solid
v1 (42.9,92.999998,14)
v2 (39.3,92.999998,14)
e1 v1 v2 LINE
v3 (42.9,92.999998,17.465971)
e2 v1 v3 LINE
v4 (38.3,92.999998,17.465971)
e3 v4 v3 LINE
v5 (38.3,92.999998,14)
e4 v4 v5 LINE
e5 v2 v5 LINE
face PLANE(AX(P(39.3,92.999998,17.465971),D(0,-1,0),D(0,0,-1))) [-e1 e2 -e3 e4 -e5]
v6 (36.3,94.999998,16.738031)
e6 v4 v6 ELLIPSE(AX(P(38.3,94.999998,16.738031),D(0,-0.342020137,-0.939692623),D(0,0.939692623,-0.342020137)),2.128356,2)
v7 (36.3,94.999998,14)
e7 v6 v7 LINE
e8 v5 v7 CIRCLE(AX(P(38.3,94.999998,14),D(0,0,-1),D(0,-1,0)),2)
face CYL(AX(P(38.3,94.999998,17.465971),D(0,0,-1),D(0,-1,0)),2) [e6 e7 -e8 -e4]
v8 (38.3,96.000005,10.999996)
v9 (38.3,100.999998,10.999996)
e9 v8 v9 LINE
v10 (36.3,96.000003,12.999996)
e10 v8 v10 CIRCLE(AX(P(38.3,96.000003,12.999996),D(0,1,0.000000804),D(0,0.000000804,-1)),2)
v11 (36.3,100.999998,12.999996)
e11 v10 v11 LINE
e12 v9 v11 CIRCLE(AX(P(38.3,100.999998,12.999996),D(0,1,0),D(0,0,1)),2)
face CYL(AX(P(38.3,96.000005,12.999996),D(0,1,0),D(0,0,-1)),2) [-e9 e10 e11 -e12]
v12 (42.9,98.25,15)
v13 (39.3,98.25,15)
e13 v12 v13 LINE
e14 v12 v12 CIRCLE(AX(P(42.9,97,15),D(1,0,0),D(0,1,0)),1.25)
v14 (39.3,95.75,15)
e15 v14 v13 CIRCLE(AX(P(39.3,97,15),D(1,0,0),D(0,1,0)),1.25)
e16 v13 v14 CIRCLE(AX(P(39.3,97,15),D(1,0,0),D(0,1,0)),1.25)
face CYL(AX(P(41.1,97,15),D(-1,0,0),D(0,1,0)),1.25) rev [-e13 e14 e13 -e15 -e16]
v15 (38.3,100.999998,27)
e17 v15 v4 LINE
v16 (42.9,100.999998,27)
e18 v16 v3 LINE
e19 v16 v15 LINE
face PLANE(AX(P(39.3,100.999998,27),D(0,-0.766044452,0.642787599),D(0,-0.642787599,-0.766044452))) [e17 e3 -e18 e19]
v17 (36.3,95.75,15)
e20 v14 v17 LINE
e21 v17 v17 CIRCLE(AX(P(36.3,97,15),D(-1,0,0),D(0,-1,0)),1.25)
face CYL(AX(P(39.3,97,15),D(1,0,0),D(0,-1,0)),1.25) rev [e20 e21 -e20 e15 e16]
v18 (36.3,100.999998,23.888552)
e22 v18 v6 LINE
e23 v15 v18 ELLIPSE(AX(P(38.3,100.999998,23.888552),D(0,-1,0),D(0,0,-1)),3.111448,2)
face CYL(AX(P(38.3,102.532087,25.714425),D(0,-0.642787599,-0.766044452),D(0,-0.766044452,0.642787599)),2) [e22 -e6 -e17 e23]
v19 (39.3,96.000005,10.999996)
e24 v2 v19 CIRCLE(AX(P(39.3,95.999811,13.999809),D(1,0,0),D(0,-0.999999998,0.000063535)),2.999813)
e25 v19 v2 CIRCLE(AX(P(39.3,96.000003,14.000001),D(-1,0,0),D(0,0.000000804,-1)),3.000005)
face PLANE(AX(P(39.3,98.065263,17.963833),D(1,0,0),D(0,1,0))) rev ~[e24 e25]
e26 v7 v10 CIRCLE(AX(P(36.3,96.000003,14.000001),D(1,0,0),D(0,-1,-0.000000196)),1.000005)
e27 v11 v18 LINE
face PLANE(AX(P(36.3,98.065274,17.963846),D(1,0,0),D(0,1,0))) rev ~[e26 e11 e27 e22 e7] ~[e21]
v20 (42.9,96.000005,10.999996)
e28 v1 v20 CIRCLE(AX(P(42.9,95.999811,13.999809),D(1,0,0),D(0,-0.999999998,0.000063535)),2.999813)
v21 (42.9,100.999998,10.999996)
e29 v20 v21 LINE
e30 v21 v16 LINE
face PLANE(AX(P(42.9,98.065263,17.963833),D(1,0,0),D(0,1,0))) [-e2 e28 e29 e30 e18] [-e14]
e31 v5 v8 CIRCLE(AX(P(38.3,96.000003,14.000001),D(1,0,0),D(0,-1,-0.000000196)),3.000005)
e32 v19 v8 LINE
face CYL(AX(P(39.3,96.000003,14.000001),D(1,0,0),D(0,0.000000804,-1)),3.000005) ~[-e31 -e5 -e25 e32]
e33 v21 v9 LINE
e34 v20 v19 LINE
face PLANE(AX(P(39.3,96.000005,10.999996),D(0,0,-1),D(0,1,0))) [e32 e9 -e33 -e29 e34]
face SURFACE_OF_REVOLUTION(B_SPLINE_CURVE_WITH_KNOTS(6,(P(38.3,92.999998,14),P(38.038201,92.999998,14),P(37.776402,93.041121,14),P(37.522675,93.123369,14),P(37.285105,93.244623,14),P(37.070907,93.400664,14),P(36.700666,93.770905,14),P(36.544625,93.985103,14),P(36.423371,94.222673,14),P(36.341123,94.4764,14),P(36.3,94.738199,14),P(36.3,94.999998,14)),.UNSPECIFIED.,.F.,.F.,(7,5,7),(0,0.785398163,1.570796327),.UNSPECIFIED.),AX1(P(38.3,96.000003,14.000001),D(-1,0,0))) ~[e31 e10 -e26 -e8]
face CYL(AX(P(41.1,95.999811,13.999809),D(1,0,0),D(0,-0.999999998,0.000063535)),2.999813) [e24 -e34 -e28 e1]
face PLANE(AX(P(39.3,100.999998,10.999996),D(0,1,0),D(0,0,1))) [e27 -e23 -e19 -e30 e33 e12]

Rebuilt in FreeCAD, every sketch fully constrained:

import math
import FreeCAD as App
import Part
import Sketcher

V = App.Vector
Q = App.Units.Quantity


def edges_at(feature, points):
    """Names of the edges that pass closest to the given points."""
    edges = feature.Shape.Edges
    near = lambda p: min(range(len(edges)), key=lambda i: edges[i].distToShape(Part.Vertex(*p))[0])
    return sorted({f"Edge{near(p) + 1}" for p in points})

doc = App.newDocument("Part")
body = doc.addObject("PartDesign::Body", "Body")

# Sketch on YZ plane
sketch1 = doc.addObject("Sketcher::SketchObject", "Sketch")
body.addObject(sketch1)
sketch1.AttachmentSupport = (doc.YZ_Plane, [""])
sketch1.MapMode = "FlatFace"
sketch1.AttachmentOffset = App.Placement(V(0, 0, -41.1), App.Rotation())
sketch1.addGeometry([
    Part.LineSegment(V(96.000005, 10.999996, 0), V(100.999998, 10.999996, 0)),  # 0
    Part.LineSegment(V(100.999998, 10.999996, 0), V(100.999998, 27, 0)),  # 1
    Part.LineSegment(V(100.999998, 27, 0), V(92.999998, 17.465971, 0)),  # 2
    Part.LineSegment(V(92.999998, 17.465971, 0), V(92.999998, 14, 0)),  # 3
    Part.ArcOfCircle(Part.Circle(V(95.999811, 13.999809, 0), V(0, 0, 1), 2.999813), math.radians(179.99636), math.radians(270.003698)),  # 4
    Part.Circle(V(97, 15, 0), V(0, 0, 1), 1.25),  # 5
], False)
sketch1.addConstraint([
    Sketcher.Constraint("Coincident", 0, 2, 1, 1),
    Sketcher.Constraint("Coincident", 1, 2, 2, 1),
    Sketcher.Constraint("Coincident", 2, 2, 3, 1),
    Sketcher.Constraint("Coincident", 3, 2, 4, 1),
    Sketcher.Constraint("Coincident", 4, 2, 0, 1),
    Sketcher.Constraint("Horizontal", 0),
    Sketcher.Constraint("Vertical", 1),
    Sketcher.Constraint("Vertical", 3),
    Sketcher.Constraint("Diameter", 5, 2.5),
    Sketcher.Constraint("Angle", 2, Q("-129.999999 deg")),
    Sketcher.Constraint("DistanceX", -1, 1, 5, 3, 97.0),
    Sketcher.Constraint("DistanceY", -1, 1, 5, 3, 15.0),
    Sketcher.Constraint("DistanceX", -1, 1, 0, 2, 100.999998),
    Sketcher.Constraint("DistanceY", -1, 1, 1, 2, 27.0),
    Sketcher.Constraint("DistanceX", -1, 1, 2, 2, 92.999998),
    Sketcher.Constraint("DistanceY", -1, 1, 3, 2, 14.0),
    Sketcher.Constraint("Radius", 4, 2.999813),
    Sketcher.Constraint("DistanceX", 0, 1, 0, 2, 4.999993),
    Sketcher.Constraint("DistanceY", 1, 1, 1, 2, 16.000004),
])
pad1 = doc.addObject("PartDesign::Pad", "Pad")
body.addObject(pad1)
pad1.Profile = sketch1
pad1.Length = 3.6
pad1.Midplane = True

# Sketch on YZ plane
sketch2 = doc.addObject("Sketcher::SketchObject", "Sketch001")
body.addObject(sketch2)
sketch2.AttachmentSupport = (doc.YZ_Plane, [""])
sketch2.MapMode = "FlatFace"
sketch2.AttachmentOffset = App.Placement(V(0, 0, -42.9), App.Rotation())
sketch2.addGeometry([
    Part.LineSegment(V(92.999998, 17.465971, 0), V(100.999998, 27, 0)),  # 0
    Part.LineSegment(V(100.999998, 27, 0), V(100.999998, 10.999996, 0)),  # 1
    Part.LineSegment(V(100.999998, 10.999996, 0), V(96.000005, 10.999996, 0)),  # 2
    Part.ArcOfCircle(Part.Circle(V(96.000003, 14.000001, 0), V(0, 0, 1), 3.000005), math.radians(-179.999989), math.radians(-89.999954)),  # 3
    Part.LineSegment(V(92.999998, 14, 0), V(92.999998, 17.465971, 0)),  # 4
    Part.Circle(V(97, 15, 0), V(0, 0, 1), 1.25),  # 5
], False)
sketch2.addConstraint([
    Sketcher.Constraint("Coincident", 0, 2, 1, 1),
    Sketcher.Constraint("Coincident", 1, 2, 2, 1),
    Sketcher.Constraint("Tangent", 2, 2, 3, 2),
    Sketcher.Constraint("Tangent", 3, 1, 4, 1),
    Sketcher.Constraint("Coincident", 4, 2, 0, 1),
    Sketcher.Constraint("Vertical", 1),
    Sketcher.Constraint("Horizontal", 2),
    Sketcher.Constraint("Vertical", 4),
    Sketcher.Constraint("Diameter", 5, 2.5),
    Sketcher.Constraint("Angle", 0, Q("50.000001 deg")),
    Sketcher.Constraint("DistanceY", -1, 1, 3, 3, 14.000001),
    Sketcher.Constraint("DistanceX", -1, 1, 5, 3, 97.0),
    Sketcher.Constraint("DistanceY", -1, 1, 5, 3, 15.0),
    Sketcher.Constraint("DistanceX", -1, 1, 0, 2, 100.999998),
    Sketcher.Constraint("DistanceY", -1, 1, 0, 2, 27.0),
    Sketcher.Constraint("DistanceX", -1, 1, 3, 1, 92.999998),
    Sketcher.Constraint("Radius", 3, 3.000005),
])
pad2 = doc.addObject("PartDesign::Pad", "Pad001")
body.addObject(pad2)
pad2.Profile = sketch2
pad2.Length = 3
pad2.Reversed = True
doc.recompute()

fillet = doc.addObject("PartDesign::Fillet", "Fillet")
body.addObject(fillet)
fillet.Base = (pad2, edges_at(pad2, [
    (-45.9, 98.5, 11),
    (-45.9, 93.879, 11.879),
    (-45.9, 93, 15.733),
    (-45.9, 97, 22.233),
]))
fillet.Radius = 2
body2 = doc.addObject("PartDesign::Body", "Body001")
doc.recompute()

body.Placement = App.Placement(V(82.2, 0, 0), App.Rotation(V(0, 0, 1), 0))
boolean = doc.addObject("PartDesign::Boolean", "Boolean")
body2.addObject(boolean)
boolean.Type = "Fuse"
boolean.addObjects([body])

doc.recompute()
